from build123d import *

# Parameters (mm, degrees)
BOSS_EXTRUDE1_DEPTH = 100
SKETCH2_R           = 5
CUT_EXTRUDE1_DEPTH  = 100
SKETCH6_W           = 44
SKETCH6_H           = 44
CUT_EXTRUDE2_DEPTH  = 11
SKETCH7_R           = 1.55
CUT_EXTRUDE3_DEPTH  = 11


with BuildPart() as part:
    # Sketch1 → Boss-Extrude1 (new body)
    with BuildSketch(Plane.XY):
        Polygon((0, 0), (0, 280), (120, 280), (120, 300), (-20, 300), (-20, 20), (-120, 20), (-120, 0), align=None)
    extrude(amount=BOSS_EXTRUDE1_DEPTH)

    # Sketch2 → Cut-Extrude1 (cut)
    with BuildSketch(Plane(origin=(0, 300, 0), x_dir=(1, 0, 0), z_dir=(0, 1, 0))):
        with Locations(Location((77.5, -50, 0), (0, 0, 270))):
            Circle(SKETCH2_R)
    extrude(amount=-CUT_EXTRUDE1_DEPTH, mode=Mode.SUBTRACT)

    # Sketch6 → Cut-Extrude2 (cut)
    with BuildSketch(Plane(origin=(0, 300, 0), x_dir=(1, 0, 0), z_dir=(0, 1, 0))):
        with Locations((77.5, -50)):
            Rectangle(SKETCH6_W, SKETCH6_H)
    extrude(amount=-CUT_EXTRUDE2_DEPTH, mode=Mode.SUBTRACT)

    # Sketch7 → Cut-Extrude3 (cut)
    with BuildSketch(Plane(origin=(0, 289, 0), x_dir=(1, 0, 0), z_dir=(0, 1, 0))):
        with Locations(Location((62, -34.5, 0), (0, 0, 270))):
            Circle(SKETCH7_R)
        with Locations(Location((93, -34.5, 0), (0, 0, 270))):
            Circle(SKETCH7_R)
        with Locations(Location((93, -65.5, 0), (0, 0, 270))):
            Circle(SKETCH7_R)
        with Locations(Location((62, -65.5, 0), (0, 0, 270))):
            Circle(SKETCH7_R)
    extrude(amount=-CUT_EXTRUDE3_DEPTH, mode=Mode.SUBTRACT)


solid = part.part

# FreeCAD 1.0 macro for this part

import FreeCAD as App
import Part
import Sketcher
from FreeCAD import Vector

doc = App.newDocument("Part")
params = doc.addObject("Spreadsheet::Sheet", "Params")
for row, (alias, value) in enumerate([
    ("sketch1_width", "120 mm"),
    ("sketch1_width2", "140 mm"),
    ("sketch1_height", "280 mm"),
    ("sketch1_height2", "20 mm"),
    ("pad1_length", "100 mm"),
    ("sketch2_diameter", "10 mm"),
    ("pocket1_length", "100 mm"),
    ("sketch3_width", "44 mm"),
    ("pocket2_length", "11 mm"),
    ("sketch4_diameter", "3.1 mm"),
    ("pocket3_length", "11 mm"),
], start=1):
    params.set(f"A{row}", alias)
    params.set(f"B{row}", "=" + value)
    params.setAlias(f"B{row}", alias)

body = doc.addObject("PartDesign::Body", "Body")

# Sketch on XY plane
sketch1 = body.newObject("Sketcher::SketchObject", "Sketch")
sketch1.AttachmentSupport = (doc.getObject("XY_Plane"), [""])
sketch1.MapMode = "FlatFace"
sketch1.addGeometry([
    Part.LineSegment(Vector(0, 0, 0), Vector(0, 280, 0)),  # 0
    Part.LineSegment(Vector(0, 280, 0), Vector(120, 280, 0)),  # 1
    Part.LineSegment(Vector(120, 280, 0), Vector(120, 300, 0)),  # 2
    Part.LineSegment(Vector(120, 300, 0), Vector(-20, 300, 0)),  # 3
    Part.LineSegment(Vector(-20, 300, 0), Vector(-20, 20, 0)),  # 4
    Part.LineSegment(Vector(-20, 20, 0), Vector(-120, 20, 0)),  # 5
    Part.LineSegment(Vector(-120, 20, 0), Vector(-120, 0, 0)),  # 6
    Part.LineSegment(Vector(-120, 0, 0), Vector(0, 0, 0)),  # 7
], False)
sketch1.addConstraint([
    Sketcher.Constraint("Coincident", 0, 2, 1, 1),
    Sketcher.Constraint("Coincident", 1, 2, 2, 1),
    Sketcher.Constraint("Coincident", 2, 2, 3, 1),
    Sketcher.Constraint("Coincident", 3, 2, 4, 1),
    Sketcher.Constraint("Coincident", 4, 2, 5, 1),
    Sketcher.Constraint("Coincident", 5, 2, 6, 1),
    Sketcher.Constraint("Coincident", 6, 2, 7, 1),
    Sketcher.Constraint("Coincident", 7, 2, 0, 1),
    Sketcher.Constraint("Vertical", 0),
    Sketcher.Constraint("Horizontal", 1),
    Sketcher.Constraint("Vertical", 2),
    Sketcher.Constraint("Horizontal", 3),
    Sketcher.Constraint("Vertical", 4),
    Sketcher.Constraint("Horizontal", 5),
    Sketcher.Constraint("Vertical", 6),
    Sketcher.Constraint("Horizontal", 7),
    Sketcher.Constraint("Coincident", 7, 2, -1, 1),
    Sketcher.Constraint("Equal", 1, 7),
    Sketcher.Constraint("Equal", 0, 4),
    Sketcher.Constraint("DistanceX", 1, 1, 1, 2, 120.0),
    Sketcher.Constraint("DistanceX", 3, 2, 3, 1, 140.0),
    Sketcher.Constraint("DistanceY", 0, 1, 0, 2, 280.0),
    Sketcher.Constraint("DistanceY", 2, 1, 2, 2, 20.0),
])
sketch1.setExpression("Constraints[19]", "Params.sketch1_width")
sketch1.setExpression("Constraints[20]", "Params.sketch1_width2")
sketch1.setExpression("Constraints[21]", "Params.sketch1_height")
sketch1.setExpression("Constraints[22]", "Params.sketch1_height2")
pad1 = body.newObject("PartDesign::Pad", "Pad")
pad1.Profile = sketch1
pad1.setExpression("Length", "Params.pad1_length")

# Sketch on XZ plane
sketch2 = body.newObject("Sketcher::SketchObject", "Sketch001")
sketch2.AttachmentSupport = (doc.getObject("XZ_Plane"), [""])
sketch2.MapMode = "FlatFace"
sketch2.AttachmentOffset = App.Placement(Vector(0, 0, -300), App.Rotation())
sketch2.addGeometry(Part.Circle(Vector(78, 50, 0), Vector(0, 0, 1), 5), False)
sketch2.addConstraint([
    Sketcher.Constraint("Diameter", 0, 10.0),
    Sketcher.Constraint("DistanceY", -1, 1, 0, 3, 50.0),
    Sketcher.Constraint("DistanceX", -1, 1, 0, 3, 77.5),
])
sketch2.setExpression("Constraints[0]", "Params.sketch2_diameter")
pocket1 = body.newObject("PartDesign::Pocket", "Pocket")
pocket1.Profile = sketch2
pocket1.setExpression("Length", "Params.pocket1_length")
pocket1.Reversed = True

# Sketch on XZ plane
sketch3 = body.newObject("Sketcher::SketchObject", "Sketch002")
sketch3.AttachmentSupport = (doc.getObject("XZ_Plane"), [""])
sketch3.MapMode = "FlatFace"
sketch3.AttachmentOffset = App.Placement(Vector(0, 0, -300), App.Rotation())
sketch3.addGeometry([
    Part.LineSegment(Vector(56, 28, 0), Vector(56, 72, 0)),
    Part.LineSegment(Vector(56, 72, 0), Vector(100, 72, 0)),
    Part.LineSegment(Vector(100, 72, 0), Vector(100, 28, 0)),
    Part.LineSegment(Vector(100, 28, 0), Vector(56, 28, 0)),
], False)
sketch3.addConstraint([
    Sketcher.Constraint("Coincident", 0, 2, 1, 1),
    Sketcher.Constraint("Coincident", 1, 2, 2, 1),
    Sketcher.Constraint("Coincident", 2, 2, 3, 1),
    Sketcher.Constraint("Coincident", 3, 2, 0, 1),
    Sketcher.Constraint("Vertical", 0),
    Sketcher.Constraint("Horizontal", 1),
    Sketcher.Constraint("Vertical", 2),
    Sketcher.Constraint("Horizontal", 3),
    Sketcher.Constraint("Equal", 3, 0),
    Sketcher.Constraint("DistanceX", 1, 1, 1, 2, 44.0),
    Sketcher.Constraint("DistanceY", -1, 1, 0, 2, 72.0),
    Sketcher.Constraint("DistanceX", -1, 1, 0, 2, 55.5),
])
sketch3.setExpression("Constraints[9]", "Params.sketch3_width")
pocket2 = body.newObject("PartDesign::Pocket", "Pocket001")
pocket2.Profile = sketch3
pocket2.setExpression("Length", "Params.pocket2_length")
pocket2.Reversed = True

# Sketch on XZ plane
sketch4 = body.newObject("Sketcher::SketchObject", "Sketch003")
sketch4.AttachmentSupport = (doc.getObject("XZ_Plane"), [""])
sketch4.MapMode = "FlatFace"
sketch4.AttachmentOffset = App.Placement(Vector(0, 0, -289), App.Rotation())
sketch4.addGeometry([
    Part.Circle(Vector(62, 34.5, 0), Vector(0, 0, 1), 1.6),
    Part.Circle(Vector(93, 34.5, 0), Vector(0, 0, 1), 1.6),
    Part.Circle(Vector(93, 65.5, 0), Vector(0, 0, 1), 1.6),
    Part.Circle(Vector(62, 65.5, 0), Vector(0, 0, 1), 1.6),
], False)
sketch4.addConstraint([
    Sketcher.Constraint("Equal", 0, 1),
    Sketcher.Constraint("Equal", 1, 2),
    Sketcher.Constraint("Equal", 2, 3),
    Sketcher.Constraint("Horizontal", 0, 3, 1, 3),
    Sketcher.Constraint("Horizontal", 2, 3, 3, 3),
    Sketcher.Constraint("Vertical", 1, 3, 2, 3),
    Sketcher.Constraint("Vertical", 0, 3, 3, 3),
    Sketcher.Constraint("Diameter", 0, 3.1),
    Sketcher.Constraint("DistanceX", -1, 1, 0, 3, 62.0),
    Sketcher.Constraint("DistanceX", -1, 1, 1, 3, 93.0),
    Sketcher.Constraint("DistanceY", 1, 3, 2, 3, 31.0),
    Sketcher.Constraint("DistanceY", -1, 1, 0, 3, 34.5),
])
sketch4.setExpression("Constraints[7]", "Params.sketch4_diameter")
pocket3 = body.newObject("PartDesign::Pocket", "Pocket002")
pocket3.Profile = sketch4
pocket3.setExpression("Length", "Params.pocket3_length")
pocket3.Reversed = True

doc.recompute()
